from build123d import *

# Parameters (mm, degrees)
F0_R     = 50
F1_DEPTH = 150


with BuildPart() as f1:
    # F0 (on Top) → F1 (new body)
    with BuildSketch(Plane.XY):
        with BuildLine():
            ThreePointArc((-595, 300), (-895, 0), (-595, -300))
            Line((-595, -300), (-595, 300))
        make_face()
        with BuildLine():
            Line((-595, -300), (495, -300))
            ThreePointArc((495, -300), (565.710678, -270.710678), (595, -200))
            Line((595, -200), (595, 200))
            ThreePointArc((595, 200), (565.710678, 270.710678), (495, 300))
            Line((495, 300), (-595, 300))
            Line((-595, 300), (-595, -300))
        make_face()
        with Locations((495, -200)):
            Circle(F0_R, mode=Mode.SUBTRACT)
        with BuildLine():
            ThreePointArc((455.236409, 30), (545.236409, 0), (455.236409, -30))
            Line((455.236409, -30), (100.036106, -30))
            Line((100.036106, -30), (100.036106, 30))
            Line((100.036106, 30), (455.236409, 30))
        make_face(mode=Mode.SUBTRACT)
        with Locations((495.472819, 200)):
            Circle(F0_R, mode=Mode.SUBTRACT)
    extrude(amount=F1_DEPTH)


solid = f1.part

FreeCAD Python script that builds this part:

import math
import FreeCAD as App
import Part
import Sketcher
from FreeCAD import Vector
Q = App.Units.Quantity

doc = App.newDocument("Part")
body = doc.addObject("PartDesign::Body", "Body")

sketch1 = body.newObject("Sketcher::SketchObject", "Sketch")
sketch1.AttachmentSupport = (doc.getObject("XY_Plane"), [""])
sketch1.MapMode = "FlatFace"
sketch1.addGeometry([
    Part.ArcOfCircle(Part.Circle(Vector(-595, 0, 0), Vector(0, 0, 1), 300), math.radians(90), math.radians(270)),
    Part.LineSegment(Vector(-595, -300, 0), Vector(495, -300, 0)),
    Part.ArcOfCircle(Part.Circle(Vector(495, -200, 0), Vector(0, 0, 1), 100), math.radians(-90), math.radians(0)),
    Part.LineSegment(Vector(595, -200, 0), Vector(595, 200, 0)),
    Part.ArcOfCircle(Part.Circle(Vector(495, 200, 0), Vector(0, 0, 1), 100), math.radians(0), math.radians(90)),
    Part.LineSegment(Vector(495, 300, 0), Vector(-595, 300, 0)),
    Part.LineSegment(Vector(100, 30, 0), Vector(455, 30, 0)),
    Part.ArcOfCircle(Part.Circle(Vector(495, 0, 0), Vector(0, 0, 1), 50), math.radians(-143), math.radians(143)),
    Part.LineSegment(Vector(455, -30, 0), Vector(100, -30, 0)),
    Part.LineSegment(Vector(100, -30, 0), Vector(100, 30, 0)),
    Part.Circle(Vector(495, -200, 0), Vector(0, 0, 1), 50),
    Part.Circle(Vector(495, 200, 0), Vector(0, 0, 1), 50),
], False)
sketch1.addConstraint([
    Sketcher.Constraint("Tangent", 0, 2, 1, 1),
    Sketcher.Constraint("Tangent", 1, 2, 2, 1),
    Sketcher.Constraint("Tangent", 2, 2, 3, 1),
    Sketcher.Constraint("Tangent", 3, 2, 4, 1),
    Sketcher.Constraint("Tangent", 4, 2, 5, 1),
    Sketcher.Constraint("Tangent", 5, 2, 0, 1),
    Sketcher.Constraint("Coincident", 6, 2, 7, 2),
    Sketcher.Constraint("Coincident", 7, 1, 8, 1),
    Sketcher.Constraint("Coincident", 8, 2, 9, 1),
    Sketcher.Constraint("Coincident", 9, 2, 6, 1),
    Sketcher.Constraint("Horizontal", 1),
    Sketcher.Constraint("Vertical", 3),
    Sketcher.Constraint("Horizontal", 5),
    Sketcher.Constraint("Horizontal", 6),
    Sketcher.Constraint("Horizontal", 8),
    Sketcher.Constraint("Vertical", 9),
    Sketcher.Constraint("Coincident", 10, 3, 2, 3),
    Sketcher.Constraint("Equal", 2, 4),
    Sketcher.Constraint("Equal", 7, 10),
    Sketcher.Constraint("Equal", 10, 11),
    Sketcher.Constraint("Symmetric", 6, 2, 7, 1, -1),
    Sketcher.Constraint("PointOnObject", 0, 3, -1),
    Sketcher.Constraint("Horizontal", 4, 3, 11, 3),
    Sketcher.Constraint("Diameter", 10, Q("100 mm")),
    Sketcher.Constraint("Radius", 0, Q("300 mm")),
    Sketcher.Constraint("Radius", 2, Q("100 mm")),
    Sketcher.Constraint("DistanceX", 1, 1, 1, 2, Q("1090 mm")),
    Sketcher.Constraint("DistanceY", 9, 1, 9, 2, Q("60 mm")),
    Sketcher.Constraint("DistanceX", 0, 3, -1, 1, Q("595 mm")),
    Sketcher.Constraint("DistanceX", 6, 1, 6, 2, Q("355.200303 mm")),
    Sketcher.Constraint("DistanceX", -1, 1, 7, 3, Q("495.236409 mm")),
    Sketcher.Constraint("DistanceX", -1, 1, 11, 3, Q("495.472819 mm")),
])
pad1 = body.newObject("PartDesign::Pad", "Pad")
pad1.Profile = sketch1
pad1.Length = 150

doc.recompute()
